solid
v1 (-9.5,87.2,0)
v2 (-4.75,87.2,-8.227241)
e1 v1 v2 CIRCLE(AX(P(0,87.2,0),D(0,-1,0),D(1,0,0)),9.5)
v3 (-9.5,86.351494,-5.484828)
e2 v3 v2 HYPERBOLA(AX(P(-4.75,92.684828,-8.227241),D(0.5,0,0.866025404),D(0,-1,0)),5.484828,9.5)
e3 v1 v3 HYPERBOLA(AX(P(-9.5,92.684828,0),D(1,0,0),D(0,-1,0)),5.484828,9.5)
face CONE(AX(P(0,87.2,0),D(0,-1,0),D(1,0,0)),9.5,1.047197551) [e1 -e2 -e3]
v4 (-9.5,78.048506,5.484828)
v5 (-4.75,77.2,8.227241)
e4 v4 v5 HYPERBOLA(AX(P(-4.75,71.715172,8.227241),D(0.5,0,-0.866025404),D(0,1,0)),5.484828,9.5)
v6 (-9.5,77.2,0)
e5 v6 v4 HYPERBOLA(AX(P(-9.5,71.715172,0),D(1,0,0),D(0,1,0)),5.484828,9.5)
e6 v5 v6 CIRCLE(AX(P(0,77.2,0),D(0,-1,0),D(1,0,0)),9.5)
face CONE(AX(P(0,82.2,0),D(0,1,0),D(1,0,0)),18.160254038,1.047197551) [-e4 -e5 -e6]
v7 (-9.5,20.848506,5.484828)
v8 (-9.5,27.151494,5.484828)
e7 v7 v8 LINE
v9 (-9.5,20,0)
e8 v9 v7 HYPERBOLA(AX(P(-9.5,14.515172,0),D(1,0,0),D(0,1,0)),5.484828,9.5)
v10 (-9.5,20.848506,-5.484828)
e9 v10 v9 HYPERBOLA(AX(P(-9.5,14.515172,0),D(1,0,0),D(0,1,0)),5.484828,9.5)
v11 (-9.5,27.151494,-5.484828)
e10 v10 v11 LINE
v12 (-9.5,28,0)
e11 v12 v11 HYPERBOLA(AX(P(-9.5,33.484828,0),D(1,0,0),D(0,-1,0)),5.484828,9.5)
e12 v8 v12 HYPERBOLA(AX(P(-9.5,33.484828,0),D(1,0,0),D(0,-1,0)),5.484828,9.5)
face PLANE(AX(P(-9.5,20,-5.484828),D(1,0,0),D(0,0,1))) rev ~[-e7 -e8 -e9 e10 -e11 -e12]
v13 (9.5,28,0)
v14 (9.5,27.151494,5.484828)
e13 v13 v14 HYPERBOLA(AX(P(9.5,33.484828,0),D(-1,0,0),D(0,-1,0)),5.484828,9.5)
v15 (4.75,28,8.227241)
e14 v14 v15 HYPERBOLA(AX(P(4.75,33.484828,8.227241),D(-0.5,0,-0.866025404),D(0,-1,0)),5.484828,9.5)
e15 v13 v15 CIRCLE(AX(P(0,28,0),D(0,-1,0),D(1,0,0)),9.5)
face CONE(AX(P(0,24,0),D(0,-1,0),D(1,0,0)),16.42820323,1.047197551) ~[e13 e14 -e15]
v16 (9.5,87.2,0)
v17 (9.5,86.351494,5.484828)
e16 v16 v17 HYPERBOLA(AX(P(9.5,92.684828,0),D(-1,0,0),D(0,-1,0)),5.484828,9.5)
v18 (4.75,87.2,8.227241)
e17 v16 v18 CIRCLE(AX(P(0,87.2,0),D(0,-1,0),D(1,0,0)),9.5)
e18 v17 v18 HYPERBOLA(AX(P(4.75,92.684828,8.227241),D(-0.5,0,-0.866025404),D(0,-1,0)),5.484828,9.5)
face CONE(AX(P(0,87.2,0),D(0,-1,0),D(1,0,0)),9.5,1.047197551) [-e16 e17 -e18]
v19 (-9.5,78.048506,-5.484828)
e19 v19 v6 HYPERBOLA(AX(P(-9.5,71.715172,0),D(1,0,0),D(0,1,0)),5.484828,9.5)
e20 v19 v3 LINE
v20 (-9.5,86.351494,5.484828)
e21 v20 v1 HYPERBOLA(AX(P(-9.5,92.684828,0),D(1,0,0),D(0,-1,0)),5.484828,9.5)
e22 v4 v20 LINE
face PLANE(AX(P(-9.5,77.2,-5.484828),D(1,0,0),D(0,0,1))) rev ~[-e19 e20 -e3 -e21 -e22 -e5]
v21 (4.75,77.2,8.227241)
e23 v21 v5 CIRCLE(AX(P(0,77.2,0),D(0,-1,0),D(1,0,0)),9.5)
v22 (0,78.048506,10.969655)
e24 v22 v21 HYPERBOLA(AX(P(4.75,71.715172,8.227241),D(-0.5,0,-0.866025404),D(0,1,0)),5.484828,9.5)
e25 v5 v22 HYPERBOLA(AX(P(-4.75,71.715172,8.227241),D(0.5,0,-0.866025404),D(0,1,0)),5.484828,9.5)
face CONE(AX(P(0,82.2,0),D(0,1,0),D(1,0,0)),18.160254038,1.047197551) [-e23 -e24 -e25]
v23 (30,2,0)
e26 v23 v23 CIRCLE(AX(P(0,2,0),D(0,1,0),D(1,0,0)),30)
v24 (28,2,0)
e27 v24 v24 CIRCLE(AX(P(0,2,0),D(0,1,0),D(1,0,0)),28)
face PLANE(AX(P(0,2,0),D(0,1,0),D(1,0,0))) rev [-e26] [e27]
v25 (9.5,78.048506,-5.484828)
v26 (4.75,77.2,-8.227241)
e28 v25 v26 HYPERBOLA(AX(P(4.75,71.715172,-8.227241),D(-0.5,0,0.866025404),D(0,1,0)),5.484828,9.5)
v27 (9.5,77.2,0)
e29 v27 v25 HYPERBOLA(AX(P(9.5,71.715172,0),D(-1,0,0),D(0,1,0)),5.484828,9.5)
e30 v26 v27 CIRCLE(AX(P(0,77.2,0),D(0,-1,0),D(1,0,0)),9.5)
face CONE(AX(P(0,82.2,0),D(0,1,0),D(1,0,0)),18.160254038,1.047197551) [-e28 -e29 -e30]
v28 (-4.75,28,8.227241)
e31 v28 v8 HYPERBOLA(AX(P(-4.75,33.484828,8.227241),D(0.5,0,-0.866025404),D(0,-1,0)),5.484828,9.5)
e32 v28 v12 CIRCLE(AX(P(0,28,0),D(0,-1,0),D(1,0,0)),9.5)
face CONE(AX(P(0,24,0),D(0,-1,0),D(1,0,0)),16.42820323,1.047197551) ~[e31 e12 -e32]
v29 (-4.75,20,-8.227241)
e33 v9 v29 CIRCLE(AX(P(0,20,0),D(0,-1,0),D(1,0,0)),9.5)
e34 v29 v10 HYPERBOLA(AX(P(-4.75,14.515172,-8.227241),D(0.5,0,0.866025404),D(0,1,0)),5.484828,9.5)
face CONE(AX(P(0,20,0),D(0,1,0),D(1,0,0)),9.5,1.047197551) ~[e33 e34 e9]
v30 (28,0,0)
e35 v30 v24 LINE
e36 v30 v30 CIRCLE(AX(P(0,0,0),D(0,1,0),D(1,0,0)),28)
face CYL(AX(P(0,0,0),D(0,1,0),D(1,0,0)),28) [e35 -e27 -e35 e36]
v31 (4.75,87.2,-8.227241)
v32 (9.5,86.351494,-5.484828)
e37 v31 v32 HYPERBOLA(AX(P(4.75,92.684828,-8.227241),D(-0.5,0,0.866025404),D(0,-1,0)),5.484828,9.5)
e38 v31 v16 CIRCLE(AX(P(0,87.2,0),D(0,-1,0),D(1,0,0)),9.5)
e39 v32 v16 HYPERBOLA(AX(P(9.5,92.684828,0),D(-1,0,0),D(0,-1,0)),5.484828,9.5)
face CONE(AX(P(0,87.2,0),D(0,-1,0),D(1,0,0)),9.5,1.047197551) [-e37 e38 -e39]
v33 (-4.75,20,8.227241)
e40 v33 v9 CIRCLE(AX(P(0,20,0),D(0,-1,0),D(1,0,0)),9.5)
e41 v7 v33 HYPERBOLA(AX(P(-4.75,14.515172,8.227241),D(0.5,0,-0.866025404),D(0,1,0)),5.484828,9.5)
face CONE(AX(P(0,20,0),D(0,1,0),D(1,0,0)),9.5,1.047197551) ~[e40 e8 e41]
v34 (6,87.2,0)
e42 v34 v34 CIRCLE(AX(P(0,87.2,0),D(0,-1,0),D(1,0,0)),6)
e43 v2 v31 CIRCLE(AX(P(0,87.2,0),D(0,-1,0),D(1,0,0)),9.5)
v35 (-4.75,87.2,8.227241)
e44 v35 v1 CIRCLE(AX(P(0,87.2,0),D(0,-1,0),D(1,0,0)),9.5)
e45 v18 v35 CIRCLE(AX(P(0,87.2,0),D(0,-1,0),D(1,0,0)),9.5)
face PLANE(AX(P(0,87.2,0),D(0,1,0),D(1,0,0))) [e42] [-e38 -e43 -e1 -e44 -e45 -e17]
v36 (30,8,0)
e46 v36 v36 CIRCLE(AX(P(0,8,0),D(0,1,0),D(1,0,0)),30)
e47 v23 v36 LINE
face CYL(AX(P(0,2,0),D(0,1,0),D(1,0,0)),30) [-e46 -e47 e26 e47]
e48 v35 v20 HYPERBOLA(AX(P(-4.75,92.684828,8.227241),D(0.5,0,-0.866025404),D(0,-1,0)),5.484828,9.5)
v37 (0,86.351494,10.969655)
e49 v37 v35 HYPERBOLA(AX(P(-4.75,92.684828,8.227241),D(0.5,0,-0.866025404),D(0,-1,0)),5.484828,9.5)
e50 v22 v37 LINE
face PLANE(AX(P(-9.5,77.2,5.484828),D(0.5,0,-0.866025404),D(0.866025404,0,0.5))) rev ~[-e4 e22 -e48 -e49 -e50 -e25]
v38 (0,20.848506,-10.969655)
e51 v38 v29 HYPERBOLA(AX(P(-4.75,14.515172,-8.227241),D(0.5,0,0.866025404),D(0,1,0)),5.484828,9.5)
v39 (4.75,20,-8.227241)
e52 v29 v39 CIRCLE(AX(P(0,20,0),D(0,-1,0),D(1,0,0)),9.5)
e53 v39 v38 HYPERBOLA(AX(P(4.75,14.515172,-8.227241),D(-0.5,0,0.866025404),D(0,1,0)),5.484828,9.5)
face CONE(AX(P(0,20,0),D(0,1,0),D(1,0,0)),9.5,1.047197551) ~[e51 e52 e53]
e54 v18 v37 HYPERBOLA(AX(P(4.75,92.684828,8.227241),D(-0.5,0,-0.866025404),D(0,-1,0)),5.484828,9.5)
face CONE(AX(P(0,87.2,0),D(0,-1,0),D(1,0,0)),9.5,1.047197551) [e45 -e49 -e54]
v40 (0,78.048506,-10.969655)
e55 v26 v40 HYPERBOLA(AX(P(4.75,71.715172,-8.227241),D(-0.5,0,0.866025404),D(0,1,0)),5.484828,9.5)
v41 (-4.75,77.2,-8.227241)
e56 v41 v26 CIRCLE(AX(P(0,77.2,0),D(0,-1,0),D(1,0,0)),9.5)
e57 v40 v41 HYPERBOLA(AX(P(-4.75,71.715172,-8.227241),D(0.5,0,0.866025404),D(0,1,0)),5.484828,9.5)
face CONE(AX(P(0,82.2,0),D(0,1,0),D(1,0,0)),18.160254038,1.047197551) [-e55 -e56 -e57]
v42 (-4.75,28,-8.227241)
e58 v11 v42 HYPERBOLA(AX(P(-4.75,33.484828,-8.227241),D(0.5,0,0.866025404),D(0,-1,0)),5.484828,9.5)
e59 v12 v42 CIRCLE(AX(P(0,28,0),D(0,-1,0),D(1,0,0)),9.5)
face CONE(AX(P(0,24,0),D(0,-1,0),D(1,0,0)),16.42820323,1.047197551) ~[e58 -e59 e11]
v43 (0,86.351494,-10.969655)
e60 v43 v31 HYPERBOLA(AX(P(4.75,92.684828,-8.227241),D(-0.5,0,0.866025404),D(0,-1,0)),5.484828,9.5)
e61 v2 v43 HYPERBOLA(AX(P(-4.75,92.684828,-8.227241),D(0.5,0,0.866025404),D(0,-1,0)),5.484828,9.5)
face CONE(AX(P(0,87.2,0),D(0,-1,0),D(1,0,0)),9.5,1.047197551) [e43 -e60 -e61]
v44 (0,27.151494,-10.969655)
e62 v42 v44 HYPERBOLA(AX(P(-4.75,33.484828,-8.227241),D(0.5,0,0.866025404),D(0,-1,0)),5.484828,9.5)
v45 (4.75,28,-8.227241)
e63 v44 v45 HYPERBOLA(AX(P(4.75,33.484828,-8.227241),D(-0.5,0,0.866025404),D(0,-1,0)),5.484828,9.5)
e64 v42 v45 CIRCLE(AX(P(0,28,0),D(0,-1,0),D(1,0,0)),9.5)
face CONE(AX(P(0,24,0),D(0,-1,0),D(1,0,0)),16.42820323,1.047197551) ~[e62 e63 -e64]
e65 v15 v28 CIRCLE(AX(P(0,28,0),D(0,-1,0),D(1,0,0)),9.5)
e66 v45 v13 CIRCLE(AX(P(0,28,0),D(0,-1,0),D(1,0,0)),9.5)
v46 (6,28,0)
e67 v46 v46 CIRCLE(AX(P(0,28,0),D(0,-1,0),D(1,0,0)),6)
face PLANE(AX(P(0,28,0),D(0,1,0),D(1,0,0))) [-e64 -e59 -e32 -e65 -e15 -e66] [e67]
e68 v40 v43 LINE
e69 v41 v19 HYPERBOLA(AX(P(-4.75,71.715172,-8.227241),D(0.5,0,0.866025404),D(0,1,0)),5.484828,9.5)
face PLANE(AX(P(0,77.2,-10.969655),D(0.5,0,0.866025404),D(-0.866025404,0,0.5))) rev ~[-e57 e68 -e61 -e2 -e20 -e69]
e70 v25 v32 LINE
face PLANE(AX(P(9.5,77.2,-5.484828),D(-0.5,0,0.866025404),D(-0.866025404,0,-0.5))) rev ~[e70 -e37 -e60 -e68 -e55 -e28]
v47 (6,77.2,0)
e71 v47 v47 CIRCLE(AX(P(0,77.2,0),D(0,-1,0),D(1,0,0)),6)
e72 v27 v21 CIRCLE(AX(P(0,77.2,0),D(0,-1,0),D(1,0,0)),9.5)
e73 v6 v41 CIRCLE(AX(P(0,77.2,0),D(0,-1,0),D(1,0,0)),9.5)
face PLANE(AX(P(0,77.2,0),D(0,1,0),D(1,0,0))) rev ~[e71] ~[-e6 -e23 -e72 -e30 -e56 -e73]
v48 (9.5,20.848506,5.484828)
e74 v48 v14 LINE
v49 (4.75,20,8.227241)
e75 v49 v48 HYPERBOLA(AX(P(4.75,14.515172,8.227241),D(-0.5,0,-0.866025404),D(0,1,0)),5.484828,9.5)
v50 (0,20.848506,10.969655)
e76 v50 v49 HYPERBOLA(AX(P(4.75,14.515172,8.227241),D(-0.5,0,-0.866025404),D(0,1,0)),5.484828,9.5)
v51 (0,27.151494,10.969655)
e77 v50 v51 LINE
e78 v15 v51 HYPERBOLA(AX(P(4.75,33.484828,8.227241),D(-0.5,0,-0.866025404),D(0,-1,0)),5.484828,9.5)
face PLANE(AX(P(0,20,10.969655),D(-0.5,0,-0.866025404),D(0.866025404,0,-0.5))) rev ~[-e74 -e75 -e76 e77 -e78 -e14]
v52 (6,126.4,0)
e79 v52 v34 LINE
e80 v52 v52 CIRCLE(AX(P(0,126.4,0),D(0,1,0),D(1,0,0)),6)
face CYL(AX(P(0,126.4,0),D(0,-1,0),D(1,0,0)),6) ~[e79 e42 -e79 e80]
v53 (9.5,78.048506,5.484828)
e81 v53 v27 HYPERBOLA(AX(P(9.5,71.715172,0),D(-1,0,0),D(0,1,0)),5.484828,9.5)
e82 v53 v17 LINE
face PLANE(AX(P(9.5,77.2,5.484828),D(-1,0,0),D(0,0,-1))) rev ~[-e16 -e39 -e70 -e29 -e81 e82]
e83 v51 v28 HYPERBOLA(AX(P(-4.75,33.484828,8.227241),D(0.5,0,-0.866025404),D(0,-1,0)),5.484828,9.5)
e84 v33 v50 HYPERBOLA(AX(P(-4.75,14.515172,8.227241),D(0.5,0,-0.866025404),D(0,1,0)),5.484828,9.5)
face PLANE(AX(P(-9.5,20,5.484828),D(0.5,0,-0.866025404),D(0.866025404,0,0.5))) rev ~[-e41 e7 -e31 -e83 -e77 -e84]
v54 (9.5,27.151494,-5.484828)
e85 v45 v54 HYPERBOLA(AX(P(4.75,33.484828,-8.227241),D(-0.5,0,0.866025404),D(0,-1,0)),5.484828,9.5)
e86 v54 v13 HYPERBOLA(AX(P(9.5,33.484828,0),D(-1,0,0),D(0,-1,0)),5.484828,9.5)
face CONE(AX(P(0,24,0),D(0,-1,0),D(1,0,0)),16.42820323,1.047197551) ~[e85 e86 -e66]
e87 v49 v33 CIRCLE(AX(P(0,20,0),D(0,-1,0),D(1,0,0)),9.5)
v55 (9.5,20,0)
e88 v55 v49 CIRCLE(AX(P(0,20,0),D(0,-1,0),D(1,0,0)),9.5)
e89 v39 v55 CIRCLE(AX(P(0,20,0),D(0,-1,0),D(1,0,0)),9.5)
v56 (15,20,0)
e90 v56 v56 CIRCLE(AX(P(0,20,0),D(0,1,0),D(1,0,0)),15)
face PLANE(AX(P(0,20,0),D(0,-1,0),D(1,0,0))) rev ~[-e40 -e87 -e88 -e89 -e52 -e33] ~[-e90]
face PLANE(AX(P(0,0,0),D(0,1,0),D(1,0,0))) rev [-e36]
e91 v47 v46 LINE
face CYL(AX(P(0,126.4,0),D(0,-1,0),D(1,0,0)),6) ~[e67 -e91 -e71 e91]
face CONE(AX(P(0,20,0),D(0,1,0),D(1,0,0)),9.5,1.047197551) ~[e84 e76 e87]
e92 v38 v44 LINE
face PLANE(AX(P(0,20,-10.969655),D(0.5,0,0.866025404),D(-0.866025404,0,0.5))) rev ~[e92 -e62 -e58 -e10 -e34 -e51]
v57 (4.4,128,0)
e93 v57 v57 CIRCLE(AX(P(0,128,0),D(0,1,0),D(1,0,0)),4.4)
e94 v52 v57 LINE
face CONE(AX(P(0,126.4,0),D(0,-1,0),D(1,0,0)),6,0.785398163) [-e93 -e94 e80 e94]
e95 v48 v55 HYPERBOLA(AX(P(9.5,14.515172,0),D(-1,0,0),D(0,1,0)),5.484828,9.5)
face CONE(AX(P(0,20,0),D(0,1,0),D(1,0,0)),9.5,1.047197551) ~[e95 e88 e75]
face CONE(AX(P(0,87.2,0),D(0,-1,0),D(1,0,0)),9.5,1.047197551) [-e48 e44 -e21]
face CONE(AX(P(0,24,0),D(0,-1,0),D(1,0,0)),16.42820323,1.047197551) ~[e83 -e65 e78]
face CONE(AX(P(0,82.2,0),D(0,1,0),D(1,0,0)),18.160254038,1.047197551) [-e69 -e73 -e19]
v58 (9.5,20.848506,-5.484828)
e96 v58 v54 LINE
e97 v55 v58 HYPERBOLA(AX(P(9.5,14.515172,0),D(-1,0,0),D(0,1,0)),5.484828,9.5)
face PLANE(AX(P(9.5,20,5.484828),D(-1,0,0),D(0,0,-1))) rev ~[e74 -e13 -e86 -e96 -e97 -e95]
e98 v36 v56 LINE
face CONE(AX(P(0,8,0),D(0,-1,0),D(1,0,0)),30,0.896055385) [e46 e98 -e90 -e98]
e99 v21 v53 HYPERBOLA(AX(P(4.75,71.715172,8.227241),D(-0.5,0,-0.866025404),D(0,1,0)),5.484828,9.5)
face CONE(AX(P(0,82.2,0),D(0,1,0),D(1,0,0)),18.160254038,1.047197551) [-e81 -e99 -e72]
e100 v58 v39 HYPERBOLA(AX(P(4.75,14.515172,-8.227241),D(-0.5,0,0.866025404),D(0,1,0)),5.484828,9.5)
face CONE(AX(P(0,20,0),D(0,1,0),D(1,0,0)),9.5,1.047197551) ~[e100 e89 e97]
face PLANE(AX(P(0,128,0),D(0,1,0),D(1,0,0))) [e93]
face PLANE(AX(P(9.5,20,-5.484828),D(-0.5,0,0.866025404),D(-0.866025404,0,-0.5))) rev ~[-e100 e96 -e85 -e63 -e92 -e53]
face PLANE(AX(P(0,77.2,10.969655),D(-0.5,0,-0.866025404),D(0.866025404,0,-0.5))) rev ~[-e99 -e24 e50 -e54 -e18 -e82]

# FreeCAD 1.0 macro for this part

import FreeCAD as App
import Part
import Sketcher
from FreeCAD import Vector
Q = App.Units.Quantity


def add_polygon(sketch, points):
    """Adds a closed chain of lines whose ends are joined by coincident constraints."""
    first, n = sketch.GeometryCount, len(points)
    for a, b in zip(points, points[1:] + points[:1]):
        sketch.addGeometry(Part.LineSegment(App.Vector(*a, 0), App.Vector(*b, 0)), False)
    for i in range(n):
        sketch.addConstraint(Sketcher.Constraint("Coincident", first + i, 2, first + (i + 1) % n, 1))

doc = App.newDocument("Part")
body = doc.addObject("PartDesign::Body", "Body")

sketch1 = body.newObject("Sketcher::SketchObject", "Sketch")
sketch1.AttachmentSupport = (doc.getObject("XY_Plane"), [""])
sketch1.MapMode = "FlatFace"
add_polygon(sketch1, [(-28, 0), (0, 0), (0, 128), (-4.4, 128), (-6, 126.4), (-6, 20), (-15, 20), (-30, 8), (-30, 2), (-28, 2)])
sketch1.addConstraint(Sketcher.Constraint("Horizontal", 0))
sketch1.addConstraint(Sketcher.Constraint("Vertical", 1))
sketch1.addConstraint(Sketcher.Constraint("Horizontal", 2))
sketch1.addConstraint(Sketcher.Constraint("Vertical", 4))
sketch1.addConstraint(Sketcher.Constraint("Horizontal", 5))
sketch1.addConstraint(Sketcher.Constraint("Vertical", 7))
sketch1.addConstraint(Sketcher.Constraint("Horizontal", 8))
sketch1.addConstraint(Sketcher.Constraint("Vertical", 9))
sketch1.addConstraint(Sketcher.Constraint("Coincident", 0, 2, -1, 1))
sketch1.addConstraint(Sketcher.Constraint("Equal", 8, 9))
sketch1.addConstraint(Sketcher.Constraint("DistanceX", 0, 1, 0, 2, Q("28 mm")))
sketch1.addConstraint(Sketcher.Constraint("DistanceX", 5, 2, 5, 1, Q("9 mm")))
sketch1.addConstraint(Sketcher.Constraint("DistanceX", 8, 1, 8, 2, Q("2 mm")))
sketch1.addConstraint(Sketcher.Constraint("DistanceY", 1, 1, 1, 2, Q("128 mm")))
sketch1.addConstraint(Sketcher.Constraint("DistanceY", 7, 2, 7, 1, Q("6 mm")))
sketch1.addConstraint(Sketcher.Constraint("Angle", 3, Q("-135 deg")))
sketch1.addConstraint(Sketcher.Constraint("DistanceX", 2, 2, 2, 1, Q("4.4 mm")))
sketch1.addConstraint(Sketcher.Constraint("DistanceY", 4, 2, 4, 1, Q("106.4 mm")))
sketch1.addConstraint(Sketcher.Constraint("DistanceX", 3, 2, -1, 1, Q("6 mm")))
revolution = body.newObject("PartDesign::Revolution", "Revolution")
revolution.Profile = sketch1
revolution.ReferenceAxis = (sketch1, ["V_Axis"])
revolution.Angle = 360

sketch2 = body.newObject("Sketcher::SketchObject", "Sketch001")
sketch2.AttachmentSupport = (doc.getObject("XZ_Plane"), [""])
sketch2.MapMode = "FlatFace"
sketch2.AttachmentOffset = App.Placement(Vector(0, 0, -20), App.Rotation())
add_polygon(sketch2, [(0, -10.969655), (-9.5, -5.484828), (-9.5, 5.484828), (0, 10.969655), (9.5, 5.484828), (9.5, -5.484828)])
sketch2.addConstraint(Sketcher.Constraint("Vertical", 1))
sketch2.addConstraint(Sketcher.Constraint("Vertical", 4))
sketch2.addConstraint(Sketcher.Constraint("Symmetric", 0, 2, 3, 2, -1, 1))
sketch2.addConstraint(Sketcher.Constraint("Symmetric", 2, 2, 5, 2, -1, 1))
sketch2.addConstraint(Sketcher.Constraint("PointOnObject", 2, 2, -2))
sketch2.addConstraint(Sketcher.Constraint("Parallel", 2, 5))
sketch2.addConstraint(Sketcher.Constraint("Horizontal", 1, 2, 3, 2))
sketch2.addConstraint(Sketcher.Constraint("Angle", 0, Q("150 deg")))
sketch2.addConstraint(Sketcher.Constraint("DistanceX", 1, 2, 3, 2, Q("19 mm")))
sketch2.addConstraint(Sketcher.Constraint("DistanceY", 1, 1, 1, 2, Q("10.969655 mm")))
pad1 = body.newObject("PartDesign::Pad", "Pad")
pad1.Profile = sketch2
pad1.Length = 8
pad1.Reversed = True

sketch3 = body.newObject("Sketcher::SketchObject", "Sketch002")
sketch3.AttachmentSupport = (doc.getObject("XZ_Plane"), [""])
sketch3.MapMode = "FlatFace"
sketch3.AttachmentOffset = App.Placement(Vector(0, 0, -77.2), App.Rotation())
add_polygon(sketch3, [(9.5, -5.484828), (0, -10.969655), (-9.5, -5.484828), (-9.5, 5.484828), (0, 10.969655), (9.5, 5.484828)])
sketch3.addConstraint(Sketcher.Constraint("Vertical", 2))
sketch3.addConstraint(Sketcher.Constraint("Vertical", 5))
sketch3.addConstraint(Sketcher.Constraint("Symmetric", 0, 2, 3, 2, -1, 1))
sketch3.addConstraint(Sketcher.Constraint("Symmetric", 1, 2, 4, 2, -1, 1))
sketch3.addConstraint(Sketcher.Constraint("PointOnObject", 0, 2, -2))
sketch3.addConstraint(Sketcher.Constraint("Parallel", 0, 3))
sketch3.addConstraint(Sketcher.Constraint("Horizontal", 2, 2, 4, 2))
sketch3.addConstraint(Sketcher.Constraint("Angle", 0, Q("-150 deg")))
sketch3.addConstraint(Sketcher.Constraint("DistanceX", 2, 2, 4, 2, Q("19 mm")))
sketch3.addConstraint(Sketcher.Constraint("DistanceY", 2, 1, 2, 2, Q("10.969655 mm")))
pad2 = body.newObject("PartDesign::Pad", "Pad001")
pad2.Profile = sketch3
pad2.Length = 10
pad2.Reversed = True

sketch4 = body.newObject("Sketcher::SketchObject", "Sketch003")
sketch4.AttachmentSupport = (doc.getObject("XY_Plane"), [""])
sketch4.MapMode = "FlatFace"
add_polygon(sketch4, [(-9.5, 87.2), (-18.160254, 87.2), (-18.160254, 82.2)])
add_polygon(sketch4, [(-18.160254, 82.2), (-18.160254, 77.2), (-9.5, 77.2)])
add_polygon(sketch4, [(-16.428203, 28), (-16.428203, 24), (-9.5, 28)])
add_polygon(sketch4, [(-16.428203, 24), (-16.428203, 20), (-9.5, 20)])
sketch4.addConstraint(Sketcher.Constraint("Horizontal", 0))
sketch4.addConstraint(Sketcher.Constraint("Vertical", 1))
sketch4.addConstraint(Sketcher.Constraint("Vertical", 3))
sketch4.addConstraint(Sketcher.Constraint("Horizontal", 4))
sketch4.addConstraint(Sketcher.Constraint("Vertical", 6))
sketch4.addConstraint(Sketcher.Constraint("Horizontal", 8))
sketch4.addConstraint(Sketcher.Constraint("Vertical", 9))
sketch4.addConstraint(Sketcher.Constraint("Horizontal", 10))
sketch4.addConstraint(Sketcher.Constraint("Coincident", 5, 2, 1, 2))
sketch4.addConstraint(Sketcher.Constraint("Coincident", 11, 2, 6, 2))
sketch4.addConstraint(Sketcher.Constraint("Parallel", 2, 7))
sketch4.addConstraint(Sketcher.Constraint("Parallel", 5, 11))
sketch4.addConstraint(Sketcher.Constraint("Vertical", 2, 2, 4, 2))
sketch4.addConstraint(Sketcher.Constraint("Vertical", 4, 2, 7, 2))
sketch4.addConstraint(Sketcher.Constraint("Vertical", 7, 2, 10, 2))
sketch4.addConstraint(Sketcher.Constraint("Equal", 1, 3))
sketch4.addConstraint(Sketcher.Constraint("DistanceY", 1, 2, 1, 1, Q("5 mm")))
sketch4.addConstraint(Sketcher.Constraint("DistanceY", 6, 2, 6, 1, Q("4 mm")))
sketch4.addConstraint(Sketcher.Constraint("Angle", 2, Q("30 deg")))
sketch4.addConstraint(Sketcher.Constraint("DistanceY", -1, 1, 6, 2, Q("24 mm")))
sketch4.addConstraint(Sketcher.Constraint("DistanceY", -1, 1, 0, 2, Q("87.2 mm")))
sketch4.addConstraint(Sketcher.Constraint("DistanceX", 2, 2, -1, 1, Q("9.5 mm")))
groove = body.newObject("PartDesign::Groove", "Groove")
groove.Profile = sketch4
groove.ReferenceAxis = (sketch4, ["V_Axis"])
groove.Angle = 360

doc.recompute()
